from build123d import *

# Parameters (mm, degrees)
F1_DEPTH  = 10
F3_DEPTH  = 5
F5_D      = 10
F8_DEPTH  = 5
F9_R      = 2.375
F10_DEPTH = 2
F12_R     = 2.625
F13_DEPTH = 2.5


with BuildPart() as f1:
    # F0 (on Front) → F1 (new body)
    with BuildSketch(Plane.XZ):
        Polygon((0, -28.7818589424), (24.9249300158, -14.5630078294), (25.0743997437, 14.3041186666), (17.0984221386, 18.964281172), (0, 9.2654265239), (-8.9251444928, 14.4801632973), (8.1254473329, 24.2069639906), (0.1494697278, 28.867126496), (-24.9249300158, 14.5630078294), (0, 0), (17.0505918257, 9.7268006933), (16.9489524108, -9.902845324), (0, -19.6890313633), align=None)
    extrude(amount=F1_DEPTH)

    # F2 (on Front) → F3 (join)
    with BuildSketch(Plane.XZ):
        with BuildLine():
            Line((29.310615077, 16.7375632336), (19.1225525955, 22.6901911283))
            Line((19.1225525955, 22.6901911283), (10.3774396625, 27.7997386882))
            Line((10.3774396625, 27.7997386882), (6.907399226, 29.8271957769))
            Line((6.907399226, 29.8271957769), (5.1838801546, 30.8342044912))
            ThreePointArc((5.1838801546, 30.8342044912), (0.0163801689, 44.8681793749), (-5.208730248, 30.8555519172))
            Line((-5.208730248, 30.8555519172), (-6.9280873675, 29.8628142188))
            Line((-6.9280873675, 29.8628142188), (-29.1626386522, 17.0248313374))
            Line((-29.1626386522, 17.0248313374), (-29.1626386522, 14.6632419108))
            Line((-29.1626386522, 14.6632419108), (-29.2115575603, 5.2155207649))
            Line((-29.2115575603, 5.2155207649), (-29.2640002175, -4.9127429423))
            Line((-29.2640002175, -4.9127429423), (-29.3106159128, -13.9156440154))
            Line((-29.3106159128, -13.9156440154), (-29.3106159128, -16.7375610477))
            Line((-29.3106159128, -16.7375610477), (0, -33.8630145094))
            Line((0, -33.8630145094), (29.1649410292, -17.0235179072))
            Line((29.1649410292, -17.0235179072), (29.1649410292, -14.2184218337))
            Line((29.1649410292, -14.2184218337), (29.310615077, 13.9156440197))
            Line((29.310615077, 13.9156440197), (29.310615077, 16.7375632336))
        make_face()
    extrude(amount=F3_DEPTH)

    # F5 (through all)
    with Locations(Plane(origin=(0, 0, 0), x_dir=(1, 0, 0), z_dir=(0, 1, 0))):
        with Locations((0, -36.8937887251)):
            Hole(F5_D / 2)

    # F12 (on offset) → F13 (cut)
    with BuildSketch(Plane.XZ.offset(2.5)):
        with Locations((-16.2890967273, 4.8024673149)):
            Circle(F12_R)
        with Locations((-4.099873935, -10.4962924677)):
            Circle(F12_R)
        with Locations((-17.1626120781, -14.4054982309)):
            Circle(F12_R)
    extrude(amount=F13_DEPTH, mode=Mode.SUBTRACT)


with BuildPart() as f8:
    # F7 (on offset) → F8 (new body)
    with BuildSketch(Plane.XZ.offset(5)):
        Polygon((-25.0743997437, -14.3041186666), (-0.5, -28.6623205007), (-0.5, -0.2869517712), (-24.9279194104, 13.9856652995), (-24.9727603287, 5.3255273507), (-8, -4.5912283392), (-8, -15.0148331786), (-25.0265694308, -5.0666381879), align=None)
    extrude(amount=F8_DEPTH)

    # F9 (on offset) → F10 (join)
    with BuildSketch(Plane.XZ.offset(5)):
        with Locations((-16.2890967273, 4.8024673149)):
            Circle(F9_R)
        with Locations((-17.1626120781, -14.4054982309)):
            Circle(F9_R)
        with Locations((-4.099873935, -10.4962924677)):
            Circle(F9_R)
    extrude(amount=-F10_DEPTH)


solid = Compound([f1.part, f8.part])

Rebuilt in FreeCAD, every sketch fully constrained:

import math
import FreeCAD as App
import Part
import Sketcher
Q = App.Units.Quantity


def add_polygon(sketch, points):
    """Adds a closed chain of lines whose ends are joined by coincident constraints."""
    first, n = sketch.GeometryCount, len(points)
    for a, b in zip(points, points[1:] + points[:1]):
        sketch.addGeometry(Part.LineSegment(App.Vector(*a, 0), App.Vector(*b, 0)), False)
    for i in range(n):
        sketch.addConstraint(Sketcher.Constraint("Coincident", first + i, 2, first + (i + 1) % n, 1))

doc = App.newDocument("Part")
body = doc.addObject("PartDesign::Body", "Body")

sketch1 = body.newObject("Sketcher::SketchObject", "Sketch")
sketch1.AttachmentSupport = (doc.getObject("XZ_Plane"), [""])
sketch1.MapMode = "FlatFace"
add_polygon(sketch1, [(0, -29), (25, -15), (25, 14), (17, 19), (0, 9), (-9, 14), (8, 24), (0, 29), (-25, 15), (0, 0), (17, 10), (17, -10), (0, -20)])
sketch1.addConstraint(Sketcher.Constraint("Vertical", 12))
sketch1.addConstraint(Sketcher.Constraint("Coincident", 8, 2, -1, 1))
sketch1.addConstraint(Sketcher.Constraint("Symmetric", 0, 2, 7, 2, -1, 1))
sketch1.addConstraint(Sketcher.Constraint("PointOnObject", 3, 2, -2))
sketch1.addConstraint(Sketcher.Constraint("PointOnObject", 11, 2, -2))
sketch1.addConstraint(Sketcher.Constraint("Parallel", 2, 4))
sketch1.addConstraint(Sketcher.Constraint("Parallel", 0, 5))
sketch1.addConstraint(Sketcher.Constraint("Parallel", 4, 6))
sketch1.addConstraint(Sketcher.Constraint("Parallel", 5, 7))
sketch1.addConstraint(Sketcher.Constraint("Parallel", 6, 8))
sketch1.addConstraint(Sketcher.Constraint("Parallel", 7, 9))
sketch1.addConstraint(Sketcher.Constraint("Parallel", 1, 10))
sketch1.addConstraint(Sketcher.Constraint("Equal", 2, 6))
sketch1.addConstraint(Sketcher.Constraint("Equal", 1, 7))
sketch1.addConstraint(Sketcher.Constraint("Equal", 7, 8))
sketch1.addConstraint(Sketcher.Constraint("Equal", 5, 9))
sketch1.addConstraint(Sketcher.Constraint("Equal", 9, 10))
sketch1.addConstraint(Sketcher.Constraint("DistanceX", -1, 1, 1, 2, Q("25.0744 mm")))
sketch1.addConstraint(Sketcher.Constraint("DistanceY", -1, 1, 9, 2, Q("9.726801 mm")))
sketch1.addConstraint(Sketcher.Constraint("DistanceY", 3, 2, 6, 2, Q("19.6017 mm")))
sketch1.addConstraint(Sketcher.Constraint("DistanceX", 7, 2, 6, 2, Q("25.0744 mm")))
sketch1.addConstraint(Sketcher.Constraint("Distance", 4, Q("10.336909 mm")))
sketch1.addConstraint(Sketcher.Constraint("Distance", 5, Q("19.629909 mm")))
sketch1.addConstraint(Sketcher.Constraint("DistanceY", 12, 2, 12, 1, Q("9.092828 mm")))
pad1 = body.newObject("PartDesign::Pad", "Pad")
pad1.Profile = sketch1
pad1.Length = 10

sketch2 = body.newObject("Sketcher::SketchObject", "Sketch001")
sketch2.AttachmentSupport = (doc.getObject("XZ_Plane"), [""])
sketch2.MapMode = "FlatFace"
sketch2.addGeometry(Part.LineSegment(App.Vector(29.3, 16.7, 0), App.Vector(19.1, 22.7, 0)), False)
sketch2.addGeometry(Part.LineSegment(App.Vector(19.1, 22.7, 0), App.Vector(10.4, 27.8, 0)), False)
sketch2.addGeometry(Part.LineSegment(App.Vector(10.4, 27.8, 0), App.Vector(6.9, 29.8, 0)), False)
sketch2.addGeometry(Part.LineSegment(App.Vector(6.9, 29.8, 0), App.Vector(5.2, 30.8, 0)), False)
sketch2.addGeometry(Part.ArcOfCircle(Part.Circle(App.Vector(0, 36.9, 0), App.Vector(0, 0, 1), 8), math.radians(-49), math.radians(229)), False)
sketch2.addGeometry(Part.LineSegment(App.Vector(-5.2, 30.9, 0), App.Vector(-6.9, 29.9, 0)), False)
sketch2.addGeometry(Part.LineSegment(App.Vector(-6.9, 29.9, 0), App.Vector(-29.2, 17, 0)), False)
sketch2.addGeometry(Part.LineSegment(App.Vector(-29.2, 17, 0), App.Vector(-29.2, 14.7, 0)), False)
sketch2.addGeometry(Part.LineSegment(App.Vector(-29.2, 14.7, 0), App.Vector(-29.2, 5.2, 0)), False)
sketch2.addGeometry(Part.LineSegment(App.Vector(-29.2, 5.2, 0), App.Vector(-29.3, -4.9, 0)), False)
sketch2.addGeometry(Part.LineSegment(App.Vector(-29.3, -4.9, 0), App.Vector(-29.3, -13.9, 0)), False)
sketch2.addGeometry(Part.LineSegment(App.Vector(-29.3, -13.9, 0), App.Vector(-29.3, -16.7, 0)), False)
sketch2.addGeometry(Part.LineSegment(App.Vector(-29.3, -16.7, 0), App.Vector(0, -33.9, 0)), False)
sketch2.addGeometry(Part.LineSegment(App.Vector(0, -33.9, 0), App.Vector(29.2, -17, 0)), False)
sketch2.addGeometry(Part.LineSegment(App.Vector(29.2, -17, 0), App.Vector(29.2, -14.2, 0)), False)
sketch2.addGeometry(Part.LineSegment(App.Vector(29.2, -14.2, 0), App.Vector(29.3, 13.9, 0)), False)
sketch2.addGeometry(Part.LineSegment(App.Vector(29.3, 13.9, 0), App.Vector(29.3, 16.7, 0)), False)
sketch2.addConstraint(Sketcher.Constraint("Coincident", 0, 2, 1, 1))
sketch2.addConstraint(Sketcher.Constraint("Coincident", 1, 2, 2, 1))
sketch2.addConstraint(Sketcher.Constraint("Coincident", 2, 2, 3, 1))
sketch2.addConstraint(Sketcher.Constraint("Coincident", 3, 2, 4, 1))
sketch2.addConstraint(Sketcher.Constraint("Coincident", 4, 2, 5, 1))
sketch2.addConstraint(Sketcher.Constraint("Coincident", 5, 2, 6, 1))
sketch2.addConstraint(Sketcher.Constraint("Coincident", 6, 2, 7, 1))
sketch2.addConstraint(Sketcher.Constraint("Coincident", 7, 2, 8, 1))
sketch2.addConstraint(Sketcher.Constraint("Coincident", 8, 2, 9, 1))
sketch2.addConstraint(Sketcher.Constraint("Coincident", 9, 2, 10, 1))
sketch2.addConstraint(Sketcher.Constraint("Coincident", 10, 2, 11, 1))
sketch2.addConstraint(Sketcher.Constraint("Coincident", 11, 2, 12, 1))
sketch2.addConstraint(Sketcher.Constraint("Coincident", 12, 2, 13, 1))
sketch2.addConstraint(Sketcher.Constraint("Coincident", 13, 2, 14, 1))
sketch2.addConstraint(Sketcher.Constraint("Coincident", 14, 2, 15, 1))
sketch2.addConstraint(Sketcher.Constraint("Coincident", 15, 2, 16, 1))
sketch2.addConstraint(Sketcher.Constraint("Coincident", 16, 2, 0, 1))
sketch2.addConstraint(Sketcher.Constraint("Vertical", 7))
sketch2.addConstraint(Sketcher.Constraint("Vertical", 11))
sketch2.addConstraint(Sketcher.Constraint("Vertical", 14))
sketch2.addConstraint(Sketcher.Constraint("Vertical", 16))
sketch2.addConstraint(Sketcher.Constraint("Symmetric", 10, 2, 15, 2, -1, 1))
sketch2.addConstraint(Sketcher.Constraint("PointOnObject", 4, 3, -2))
sketch2.addConstraint(Sketcher.Constraint("PointOnObject", 12, 2, -2))
sketch2.addConstraint(Sketcher.Constraint("Parallel", 0, 1))
sketch2.addConstraint(Sketcher.Constraint("Parallel", 1, 2))
sketch2.addConstraint(Sketcher.Constraint("Parallel", 2, 3))
sketch2.addConstraint(Sketcher.Constraint("Parallel", 5, 6))
sketch2.addConstraint(Sketcher.Constraint("Parallel", 8, 9))
sketch2.addConstraint(Sketcher.Constraint("Parallel", 9, 10))
sketch2.addConstraint(Sketcher.Constraint("Parallel", 3, 12))
sketch2.addConstraint(Sketcher.Constraint("Parallel", 6, 13))
sketch2.addConstraint(Sketcher.Constraint("Parallel", 10, 15))
sketch2.addConstraint(Sketcher.Constraint("Equal", 1, 9))
sketch2.addConstraint(Sketcher.Constraint("DistanceX", 9, 2, -1, 1, Q("29.264 mm")))
sketch2.addConstraint(Sketcher.Constraint("Radius", 4, Q("7.974407 mm")))
sketch2.addConstraint(Sketcher.Constraint("Distance", 1, Q("10.1284 mm")))
sketch2.addConstraint(Sketcher.Constraint("DistanceY", 7, 2, 7, 1, Q("2.361589 mm")))
sketch2.addConstraint(Sketcher.Constraint("DistanceY", 16, 1, 16, 2, Q("2.821919 mm")))
sketch2.addConstraint(Sketcher.Constraint("DistanceX", -1, 1, 2, 2, Q("6.907399 mm")))
sketch2.addConstraint(Sketcher.Constraint("DistanceY", 10, 2, 9, 2, Q("9.002901 mm")))
sketch2.addConstraint(Sketcher.Constraint("DistanceX", 1, 2, 13, 2, Q("18.787501 mm")))
sketch2.addConstraint(Sketcher.Constraint("Distance", 12, Q("33.94692 mm")))
sketch2.addConstraint(Sketcher.Constraint("Distance", 13, Q("33.677328 mm")))
sketch2.addConstraint(Sketcher.Constraint("DistanceY", 11, 2, 11, 1, Q("2.821917 mm")))
sketch2.addConstraint(Sketcher.Constraint("DistanceY", 14, 1, 14, 2, Q("2.805096 mm")))
sketch2.addConstraint(Sketcher.Constraint("DistanceY", -1, 1, 4, 3, Q("36.893789 mm")))
sketch2.addConstraint(Sketcher.Constraint("DistanceY", -1, 1, 0, 2, Q("22.690191 mm")))
sketch2.addConstraint(Sketcher.Constraint("DistanceX", -1, 1, 1, 2, Q("10.37744 mm")))
sketch2.addConstraint(Sketcher.Constraint("DistanceX", 4, 2, -1, 1, Q("5.20873 mm")))
sketch2.addConstraint(Sketcher.Constraint("DistanceY", 5, 2, 3, 2, Q("0.97139 mm")))
pad2 = body.newObject("PartDesign::Pad", "Pad001")
pad2.Profile = sketch2
pad2.Length = 5

sketch3 = body.newObject("Sketcher::SketchObject", "Sketch002")
sketch3.AttachmentSupport = (doc.getObject("XZ_Plane"), [""])
sketch3.MapMode = "FlatFace"
sketch3.addGeometry(Part.Circle(App.Vector(0, 37, 0), App.Vector(0, 0, 1), 5), False)
sketch3.addConstraint(Sketcher.Constraint("PointOnObject", 0, 3, -2))
sketch3.addConstraint(Sketcher.Constraint("Diameter", 0, Q("10 mm")))
sketch3.addConstraint(Sketcher.Constraint("DistanceY", -1, 1, 0, 3, Q("36.893789 mm")))
doc.recompute()
hole = body.newObject("PartDesign::Hole", "Hole")
hole.Profile = sketch3
hole.ThreadType = "None"
hole.Diameter = 10
hole.DepthType = "ThroughAll"
hole.Reversed = True

sketch4 = body.newObject("Sketcher::SketchObject", "Sketch003")
sketch4.AttachmentSupport = (doc.getObject("XZ_Plane"), [""])
sketch4.MapMode = "FlatFace"
sketch4.AttachmentOffset = App.Placement(App.Vector(0, 0, 2.5), App.Rotation())
sketch4.addGeometry(Part.Circle(App.Vector(-16.3, 4.8, 0), App.Vector(0, 0, 1), 2.6), False)
sketch4.addGeometry(Part.Circle(App.Vector(-4.1, -10.5, 0), App.Vector(0, 0, 1), 2.6), False)
sketch4.addGeometry(Part.Circle(App.Vector(-17.2, -14.4, 0), App.Vector(0, 0, 1), 2.6), False)
sketch4.addConstraint(Sketcher.Constraint("Equal", 0, 1))
sketch4.addConstraint(Sketcher.Constraint("Equal", 1, 2))
sketch4.addConstraint(Sketcher.Constraint("Diameter", 0, Q("5.25 mm")))
sketch4.addConstraint(Sketcher.Constraint("DistanceY", 2, 3, -1, 1, Q("14.405498 mm")))
sketch4.addConstraint(Sketcher.Constraint("DistanceY", 1, 3, 0, 3, Q("15.29876 mm")))
sketch4.addConstraint(Sketcher.Constraint("DistanceX", 2, 3, 1, 3, Q("13.062738 mm")))
sketch4.addConstraint(Sketcher.Constraint("DistanceX", 0, 3, -1, 1, Q("16.289097 mm")))
sketch4.addConstraint(Sketcher.Constraint("DistanceY", -1, 1, 0, 3, Q("4.802467 mm")))
sketch4.addConstraint(Sketcher.Constraint("DistanceX", 1, 3, -1, 1, Q("4.099874 mm")))
pocket1 = body.newObject("PartDesign::Pocket", "Pocket")
pocket1.Profile = sketch4
pocket1.Length = 2.5
pocket1.Reversed = True
body2 = doc.addObject("PartDesign::Body", "Body001")

sketch5 = body2.newObject("Sketcher::SketchObject", "Sketch004")
sketch5.AttachmentSupport = (doc.getObject("XZ_Plane001"), [""])
sketch5.MapMode = "FlatFace"
sketch5.AttachmentOffset = App.Placement(App.Vector(0, 0, 5), App.Rotation())
add_polygon(sketch5, [(-25, -14), (0, -29), (0, 0), (-25, 14), (-25, 5), (-8, -5), (-8, -15), (-25, -5)])
sketch5.addConstraint(Sketcher.Constraint("Vertical", 1))
sketch5.addConstraint(Sketcher.Constraint("Vertical", 5))
sketch5.addConstraint(Sketcher.Constraint("Parallel", 0, 2))
sketch5.addConstraint(Sketcher.Constraint("Parallel", 2, 4))
sketch5.addConstraint(Sketcher.Constraint("Parallel", 4, 6))
sketch5.addConstraint(Sketcher.Constraint("Parallel", 3, 7))
sketch5.addConstraint(Sketcher.Constraint("DistanceX", 4, 2, -1, 1, Q("8 mm")))
sketch5.addConstraint(Sketcher.Constraint("DistanceX", 0, 2, -1, 1, Q("0.5 mm")))
sketch5.addConstraint(Sketcher.Constraint("DistanceY", 1, 1, 1, 2, Q("28.375369 mm")))
sketch5.addConstraint(Sketcher.Constraint("DistanceX", 7, 2, -1, 1, Q("25.0744 mm")))
sketch5.addConstraint(Sketcher.Constraint("DistanceY", 5, 2, 2, 2, Q("29.000498 mm")))
sketch5.addConstraint(Sketcher.Constraint("DistanceY", 5, 2, 5, 1, Q("10.423605 mm")))
sketch5.addConstraint(Sketcher.Constraint("DistanceY", 0, 2, -1, 1, Q("28.662321 mm")))
sketch5.addConstraint(Sketcher.Constraint("DistanceX", 2, 2, -1, 1, Q("24.927919 mm")))
sketch5.addConstraint(Sketcher.Constraint("DistanceX", 3, 2, -1, 1, Q("24.97276 mm")))
sketch5.addConstraint(Sketcher.Constraint("DistanceY", 4, 2, -1, 1, Q("4.591228 mm")))
pad3 = body2.newObject("PartDesign::Pad", "Pad002")
pad3.Profile = sketch5
pad3.Length = 5

sketch6 = body2.newObject("Sketcher::SketchObject", "Sketch005")
sketch6.AttachmentSupport = (doc.getObject("XZ_Plane001"), [""])
sketch6.MapMode = "FlatFace"
sketch6.AttachmentOffset = App.Placement(App.Vector(0, 0, 5), App.Rotation())
sketch6.addGeometry(Part.Circle(App.Vector(-16.3, 4.8, 0), App.Vector(0, 0, 1), 2.4), False)
sketch6.addGeometry(Part.Circle(App.Vector(-17.2, -14.4, 0), App.Vector(0, 0, 1), 2.4), False)
sketch6.addGeometry(Part.Circle(App.Vector(-4.1, -10.5, 0), App.Vector(0, 0, 1), 2.4), False)
sketch6.addConstraint(Sketcher.Constraint("Equal", 0, 1))
sketch6.addConstraint(Sketcher.Constraint("Equal", 1, 2))
sketch6.addConstraint(Sketcher.Constraint("Diameter", 0, Q("4.75 mm")))
sketch6.addConstraint(Sketcher.Constraint("DistanceY", 1, 3, -1, 1, Q("14.405498 mm")))
sketch6.addConstraint(Sketcher.Constraint("DistanceX", 1, 3, 2, 3, Q("13.062738 mm")))
sketch6.addConstraint(Sketcher.Constraint("DistanceY", 2, 3, 0, 3, Q("15.29876 mm")))
sketch6.addConstraint(Sketcher.Constraint("DistanceX", 0, 3, -1, 1, Q("16.289097 mm")))
sketch6.addConstraint(Sketcher.Constraint("DistanceY", -1, 1, 0, 3, Q("4.802467 mm")))
sketch6.addConstraint(Sketcher.Constraint("DistanceX", 1, 3, -1, 1, Q("17.162612 mm")))
pad4 = body2.newObject("PartDesign::Pad", "Pad003")
pad4.Profile = sketch6
pad4.Length = 2
pad4.Reversed = True

doc.recompute()
